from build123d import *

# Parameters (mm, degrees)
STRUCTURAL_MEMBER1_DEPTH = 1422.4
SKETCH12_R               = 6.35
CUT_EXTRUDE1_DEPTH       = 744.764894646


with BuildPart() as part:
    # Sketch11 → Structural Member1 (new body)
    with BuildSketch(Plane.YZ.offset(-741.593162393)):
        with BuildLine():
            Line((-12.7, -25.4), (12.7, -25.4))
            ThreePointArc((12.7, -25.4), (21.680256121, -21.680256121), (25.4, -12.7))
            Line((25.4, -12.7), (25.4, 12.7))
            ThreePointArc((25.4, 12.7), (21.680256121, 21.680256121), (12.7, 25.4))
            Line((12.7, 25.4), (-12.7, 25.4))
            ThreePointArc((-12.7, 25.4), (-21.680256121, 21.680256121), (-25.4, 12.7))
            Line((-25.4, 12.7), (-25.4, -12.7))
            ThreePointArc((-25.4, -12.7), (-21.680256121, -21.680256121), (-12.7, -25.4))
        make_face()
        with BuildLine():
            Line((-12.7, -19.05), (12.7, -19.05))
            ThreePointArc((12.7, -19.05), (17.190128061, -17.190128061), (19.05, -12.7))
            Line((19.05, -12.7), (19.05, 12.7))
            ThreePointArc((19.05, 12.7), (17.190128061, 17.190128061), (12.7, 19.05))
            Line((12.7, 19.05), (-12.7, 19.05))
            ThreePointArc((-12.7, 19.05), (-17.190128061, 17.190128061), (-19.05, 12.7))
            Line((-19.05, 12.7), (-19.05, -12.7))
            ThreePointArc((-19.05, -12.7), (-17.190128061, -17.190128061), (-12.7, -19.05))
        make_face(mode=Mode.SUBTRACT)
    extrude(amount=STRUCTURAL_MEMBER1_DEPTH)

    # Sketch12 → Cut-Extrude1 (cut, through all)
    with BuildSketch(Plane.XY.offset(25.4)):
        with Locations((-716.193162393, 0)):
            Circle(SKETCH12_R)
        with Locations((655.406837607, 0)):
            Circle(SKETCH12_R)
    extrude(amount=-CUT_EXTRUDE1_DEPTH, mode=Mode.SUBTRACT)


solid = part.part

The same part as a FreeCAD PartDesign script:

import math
import FreeCAD as App
import Part
import Sketcher
Q = App.Units.Quantity

doc = App.newDocument("Part")
body = doc.addObject("PartDesign::Body", "Body")

sketch1 = doc.addObject("Sketcher::SketchObject", "Sketch")
body.addObject(sketch1)
sketch1.AttachmentSupport = (doc.YZ_Plane, [""])
sketch1.MapMode = "FlatFace"
sketch1.AttachmentOffset = App.Placement(App.Vector(0, 0, -741.593162), App.Rotation())
sketch1.addGeometry([
    Part.LineSegment(App.Vector(-12.7, -25.4, 0), App.Vector(12.7, -25.4, 0)),
    Part.ArcOfCircle(Part.Circle(App.Vector(12.7, -12.7, 0), App.Vector(0, 0, 1), 12.7), math.radians(-90), math.radians(0)),
    Part.LineSegment(App.Vector(25.4, -12.7, 0), App.Vector(25.4, 12.7, 0)),
    Part.ArcOfCircle(Part.Circle(App.Vector(12.7, 12.7, 0), App.Vector(0, 0, 1), 12.7), math.radians(0), math.radians(90)),
    Part.LineSegment(App.Vector(12.7, 25.4, 0), App.Vector(-12.7, 25.4, 0)),
    Part.ArcOfCircle(Part.Circle(App.Vector(-12.7, 12.7, 0), App.Vector(0, 0, 1), 12.7), math.radians(90), math.radians(180)),
    Part.LineSegment(App.Vector(-25.4, 12.7, 0), App.Vector(-25.4, -12.7, 0)),
    Part.ArcOfCircle(Part.Circle(App.Vector(-12.7, -12.7, 0), App.Vector(0, 0, 1), 12.7), math.radians(180), math.radians(270)),
    Part.LineSegment(App.Vector(12.7, -19.05, 0), App.Vector(-12.7, -19.05, 0)),
    Part.ArcOfCircle(Part.Circle(App.Vector(-12.7, -12.7, 0), App.Vector(0, 0, 1), 6.35), math.radians(180), math.radians(270)),
    Part.LineSegment(App.Vector(-19.05, -12.7, 0), App.Vector(-19.05, 12.7, 0)),
    Part.ArcOfCircle(Part.Circle(App.Vector(-12.7, 12.7, 0), App.Vector(0, 0, 1), 6.35), math.radians(90), math.radians(180)),
    Part.LineSegment(App.Vector(-12.7, 19.05, 0), App.Vector(12.7, 19.05, 0)),
    Part.ArcOfCircle(Part.Circle(App.Vector(12.7, 12.7, 0), App.Vector(0, 0, 1), 6.35), math.radians(0), math.radians(90)),
    Part.LineSegment(App.Vector(19.05, 12.7, 0), App.Vector(19.05, -12.7, 0)),
    Part.ArcOfCircle(Part.Circle(App.Vector(12.7, -12.7, 0), App.Vector(0, 0, 1), 6.35), math.radians(-90), math.radians(0)),
], False)
sketch1.addConstraint([
    Sketcher.Constraint("Tangent", 0, 2, 1, 1),
    Sketcher.Constraint("Tangent", 1, 2, 2, 1),
    Sketcher.Constraint("Tangent", 2, 2, 3, 1),
    Sketcher.Constraint("Tangent", 3, 2, 4, 1),
    Sketcher.Constraint("Tangent", 4, 2, 5, 1),
    Sketcher.Constraint("Tangent", 5, 2, 6, 1),
    Sketcher.Constraint("Tangent", 6, 2, 7, 1),
    Sketcher.Constraint("Tangent", 7, 2, 0, 1),
    Sketcher.Constraint("Tangent", 8, 2, 9, 2),
    Sketcher.Constraint("Tangent", 9, 1, 10, 1),
    Sketcher.Constraint("Tangent", 10, 2, 11, 2),
    Sketcher.Constraint("Tangent", 11, 1, 12, 1),
    Sketcher.Constraint("Tangent", 12, 2, 13, 2),
    Sketcher.Constraint("Tangent", 13, 1, 14, 1),
    Sketcher.Constraint("Tangent", 14, 2, 15, 2),
    Sketcher.Constraint("Tangent", 15, 1, 8, 1),
    Sketcher.Constraint("Horizontal", 0),
    Sketcher.Constraint("Vertical", 2),
    Sketcher.Constraint("Horizontal", 4),
    Sketcher.Constraint("Vertical", 6),
    Sketcher.Constraint("Horizontal", 8),
    Sketcher.Constraint("Vertical", 10),
    Sketcher.Constraint("Horizontal", 12),
    Sketcher.Constraint("Vertical", 14),
    Sketcher.Constraint("Coincident", 9, 3, 7, 3),
    Sketcher.Constraint("Coincident", 11, 3, 5, 3),
    Sketcher.Constraint("Coincident", 13, 3, 3, 3),
    Sketcher.Constraint("Equal", 1, 3),
    Sketcher.Constraint("Equal", 3, 5),
    Sketcher.Constraint("Equal", 5, 7),
    Sketcher.Constraint("Equal", 13, 15),
    Sketcher.Constraint("Symmetric", 1, 3, 5, 3, -1, 1),
    Sketcher.Constraint("Equal", 12, 2),
    Sketcher.Constraint("Radius", 1, Q("0.5 in")),
    Sketcher.Constraint("DistanceX", 0, 1, 0, 2, Q("1 in")),
    Sketcher.Constraint("Radius", 9, Q("0.25 in")),
])
pad1 = doc.addObject("PartDesign::Pad", "Pad")
body.addObject(pad1)
pad1.Profile = sketch1
pad1.Length = Q("56 in")

sketch2 = doc.addObject("Sketcher::SketchObject", "Sketch001")
body.addObject(sketch2)
sketch2.AttachmentSupport = (doc.XY_Plane, [""])
sketch2.MapMode = "FlatFace"
sketch2.AttachmentOffset = App.Placement(App.Vector(0, 0, 1 * 25.4), App.Rotation())
sketch2.addGeometry([
    Part.Circle(App.Vector(-716.193162, 0, 0), App.Vector(0, 0, 1), 6.35),
    Part.Circle(App.Vector(655.406838, 0, 0), App.Vector(0, 0, 1), 6.35),
], False)
sketch2.addConstraint([
    Sketcher.Constraint("Equal", 0, 1),
    Sketcher.Constraint("PointOnObject", 0, 3, -1),
    Sketcher.Constraint("PointOnObject", 1, 3, -1),
    Sketcher.Constraint("Diameter", 0, Q("0.5 in")),
    Sketcher.Constraint("DistanceX", 0, 3, 1, 3, Q("54 in")),
    Sketcher.Constraint("DistanceX", 0, 3, -1, 1, Q("716.193162 mm")),
])
pocket1 = doc.addObject("PartDesign::Pocket", "Pocket")
body.addObject(pocket1)
pocket1.Profile = sketch2
pocket1.Type = "ThroughAll"

doc.recompute()
